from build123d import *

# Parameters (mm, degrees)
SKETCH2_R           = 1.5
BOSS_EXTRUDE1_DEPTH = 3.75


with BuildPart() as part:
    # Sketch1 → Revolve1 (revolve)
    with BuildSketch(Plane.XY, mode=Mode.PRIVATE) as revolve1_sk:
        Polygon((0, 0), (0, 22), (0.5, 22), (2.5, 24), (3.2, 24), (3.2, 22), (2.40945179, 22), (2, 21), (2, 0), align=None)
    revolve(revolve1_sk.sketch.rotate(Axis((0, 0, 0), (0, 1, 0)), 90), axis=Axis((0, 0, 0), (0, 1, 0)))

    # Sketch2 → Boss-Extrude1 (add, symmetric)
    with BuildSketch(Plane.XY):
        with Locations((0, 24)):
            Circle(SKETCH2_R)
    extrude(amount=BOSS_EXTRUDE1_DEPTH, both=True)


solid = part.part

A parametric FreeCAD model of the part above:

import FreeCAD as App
import Part
import Sketcher
from FreeCAD import Vector
Q = App.Units.Quantity


def add_polygon(sketch, points):
    """Adds a closed chain of lines whose ends are joined by coincident constraints."""
    first, n = sketch.GeometryCount, len(points)
    for a, b in zip(points, points[1:] + points[:1]):
        sketch.addGeometry(Part.LineSegment(App.Vector(*a, 0), App.Vector(*b, 0)), False)
    for i in range(n):
        sketch.addConstraint(Sketcher.Constraint("Coincident", first + i, 2, first + (i + 1) % n, 1))

doc = App.newDocument("Part")
body = doc.addObject("PartDesign::Body", "Body")

# Sketch on XY plane
sketch1 = body.newObject("Sketcher::SketchObject", "Sketch")
sketch1.AttachmentSupport = (doc.getObject("XY_Plane"), [""])
sketch1.MapMode = "FlatFace"
add_polygon(sketch1, [(0, 22), (0, 0), (2, 0), (2, 21), (2.409452, 22), (3.2, 22), (3.2, 24), (2.5, 24), (0.5, 22)])  # lines 0-8
sketch1.addConstraint(Sketcher.Constraint("Vertical", 0))
sketch1.addConstraint(Sketcher.Constraint("Horizontal", 1))
sketch1.addConstraint(Sketcher.Constraint("Vertical", 2))
sketch1.addConstraint(Sketcher.Constraint("Horizontal", 4))
sketch1.addConstraint(Sketcher.Constraint("Vertical", 5))
sketch1.addConstraint(Sketcher.Constraint("Horizontal", 6))
sketch1.addConstraint(Sketcher.Constraint("Horizontal", 8))
sketch1.addConstraint(Sketcher.Constraint("Coincident", 0, 2, -1, 1))
sketch1.addConstraint(Sketcher.Constraint("Horizontal", 4, 2, 7, 2))
sketch1.addConstraint(Sketcher.Constraint("Equal", 1, 5))
sketch1.addConstraint(Sketcher.Constraint("DistanceX", 1, 1, 1, 2, Q("2 mm")))
sketch1.addConstraint(Sketcher.Constraint("DistanceY", 0, 2, 0, 1, Q("22 mm")))
sketch1.addConstraint(Sketcher.Constraint("DistanceY", 2, 1, 2, 2, Q("21 mm")))
sketch1.addConstraint(Sketcher.Constraint("Angle", 7, Q("-135 deg")))
sketch1.addConstraint(Sketcher.Constraint("DistanceX", 6, 2, 6, 1, Q("0.7 mm")))
sketch1.addConstraint(Sketcher.Constraint("DistanceX", 8, 2, 8, 1, Q("0.5 mm")))
sketch1.addConstraint(Sketcher.Constraint("DistanceX", 4, 1, 4, 2, Q("0.790548 mm")))
revolution = body.newObject("PartDesign::Revolution", "Revolution")
revolution.Profile = sketch1
revolution.ReferenceAxis = (sketch1, ["V_Axis"])
revolution.Angle = 360

# Sketch on XY plane
sketch2 = body.newObject("Sketcher::SketchObject", "Sketch001")
sketch2.AttachmentSupport = (doc.getObject("XY_Plane"), [""])
sketch2.MapMode = "FlatFace"
sketch2.addGeometry(Part.Circle(Vector(0, 24, 0), Vector(0, 0, 1), 1.5), False)
sketch2.addConstraint(Sketcher.Constraint("PointOnObject", 0, 3, -2))
sketch2.addConstraint(Sketcher.Constraint("Diameter", 0, Q("3 mm")))
sketch2.addConstraint(Sketcher.Constraint("DistanceY", -1, 1, 0, 3, Q("24 mm")))
pad1 = body.newObject("PartDesign::Pad", "Pad")
pad1.Profile = sketch2
pad1.Length = 7.5
pad1.Midplane = True

doc.recompute()
